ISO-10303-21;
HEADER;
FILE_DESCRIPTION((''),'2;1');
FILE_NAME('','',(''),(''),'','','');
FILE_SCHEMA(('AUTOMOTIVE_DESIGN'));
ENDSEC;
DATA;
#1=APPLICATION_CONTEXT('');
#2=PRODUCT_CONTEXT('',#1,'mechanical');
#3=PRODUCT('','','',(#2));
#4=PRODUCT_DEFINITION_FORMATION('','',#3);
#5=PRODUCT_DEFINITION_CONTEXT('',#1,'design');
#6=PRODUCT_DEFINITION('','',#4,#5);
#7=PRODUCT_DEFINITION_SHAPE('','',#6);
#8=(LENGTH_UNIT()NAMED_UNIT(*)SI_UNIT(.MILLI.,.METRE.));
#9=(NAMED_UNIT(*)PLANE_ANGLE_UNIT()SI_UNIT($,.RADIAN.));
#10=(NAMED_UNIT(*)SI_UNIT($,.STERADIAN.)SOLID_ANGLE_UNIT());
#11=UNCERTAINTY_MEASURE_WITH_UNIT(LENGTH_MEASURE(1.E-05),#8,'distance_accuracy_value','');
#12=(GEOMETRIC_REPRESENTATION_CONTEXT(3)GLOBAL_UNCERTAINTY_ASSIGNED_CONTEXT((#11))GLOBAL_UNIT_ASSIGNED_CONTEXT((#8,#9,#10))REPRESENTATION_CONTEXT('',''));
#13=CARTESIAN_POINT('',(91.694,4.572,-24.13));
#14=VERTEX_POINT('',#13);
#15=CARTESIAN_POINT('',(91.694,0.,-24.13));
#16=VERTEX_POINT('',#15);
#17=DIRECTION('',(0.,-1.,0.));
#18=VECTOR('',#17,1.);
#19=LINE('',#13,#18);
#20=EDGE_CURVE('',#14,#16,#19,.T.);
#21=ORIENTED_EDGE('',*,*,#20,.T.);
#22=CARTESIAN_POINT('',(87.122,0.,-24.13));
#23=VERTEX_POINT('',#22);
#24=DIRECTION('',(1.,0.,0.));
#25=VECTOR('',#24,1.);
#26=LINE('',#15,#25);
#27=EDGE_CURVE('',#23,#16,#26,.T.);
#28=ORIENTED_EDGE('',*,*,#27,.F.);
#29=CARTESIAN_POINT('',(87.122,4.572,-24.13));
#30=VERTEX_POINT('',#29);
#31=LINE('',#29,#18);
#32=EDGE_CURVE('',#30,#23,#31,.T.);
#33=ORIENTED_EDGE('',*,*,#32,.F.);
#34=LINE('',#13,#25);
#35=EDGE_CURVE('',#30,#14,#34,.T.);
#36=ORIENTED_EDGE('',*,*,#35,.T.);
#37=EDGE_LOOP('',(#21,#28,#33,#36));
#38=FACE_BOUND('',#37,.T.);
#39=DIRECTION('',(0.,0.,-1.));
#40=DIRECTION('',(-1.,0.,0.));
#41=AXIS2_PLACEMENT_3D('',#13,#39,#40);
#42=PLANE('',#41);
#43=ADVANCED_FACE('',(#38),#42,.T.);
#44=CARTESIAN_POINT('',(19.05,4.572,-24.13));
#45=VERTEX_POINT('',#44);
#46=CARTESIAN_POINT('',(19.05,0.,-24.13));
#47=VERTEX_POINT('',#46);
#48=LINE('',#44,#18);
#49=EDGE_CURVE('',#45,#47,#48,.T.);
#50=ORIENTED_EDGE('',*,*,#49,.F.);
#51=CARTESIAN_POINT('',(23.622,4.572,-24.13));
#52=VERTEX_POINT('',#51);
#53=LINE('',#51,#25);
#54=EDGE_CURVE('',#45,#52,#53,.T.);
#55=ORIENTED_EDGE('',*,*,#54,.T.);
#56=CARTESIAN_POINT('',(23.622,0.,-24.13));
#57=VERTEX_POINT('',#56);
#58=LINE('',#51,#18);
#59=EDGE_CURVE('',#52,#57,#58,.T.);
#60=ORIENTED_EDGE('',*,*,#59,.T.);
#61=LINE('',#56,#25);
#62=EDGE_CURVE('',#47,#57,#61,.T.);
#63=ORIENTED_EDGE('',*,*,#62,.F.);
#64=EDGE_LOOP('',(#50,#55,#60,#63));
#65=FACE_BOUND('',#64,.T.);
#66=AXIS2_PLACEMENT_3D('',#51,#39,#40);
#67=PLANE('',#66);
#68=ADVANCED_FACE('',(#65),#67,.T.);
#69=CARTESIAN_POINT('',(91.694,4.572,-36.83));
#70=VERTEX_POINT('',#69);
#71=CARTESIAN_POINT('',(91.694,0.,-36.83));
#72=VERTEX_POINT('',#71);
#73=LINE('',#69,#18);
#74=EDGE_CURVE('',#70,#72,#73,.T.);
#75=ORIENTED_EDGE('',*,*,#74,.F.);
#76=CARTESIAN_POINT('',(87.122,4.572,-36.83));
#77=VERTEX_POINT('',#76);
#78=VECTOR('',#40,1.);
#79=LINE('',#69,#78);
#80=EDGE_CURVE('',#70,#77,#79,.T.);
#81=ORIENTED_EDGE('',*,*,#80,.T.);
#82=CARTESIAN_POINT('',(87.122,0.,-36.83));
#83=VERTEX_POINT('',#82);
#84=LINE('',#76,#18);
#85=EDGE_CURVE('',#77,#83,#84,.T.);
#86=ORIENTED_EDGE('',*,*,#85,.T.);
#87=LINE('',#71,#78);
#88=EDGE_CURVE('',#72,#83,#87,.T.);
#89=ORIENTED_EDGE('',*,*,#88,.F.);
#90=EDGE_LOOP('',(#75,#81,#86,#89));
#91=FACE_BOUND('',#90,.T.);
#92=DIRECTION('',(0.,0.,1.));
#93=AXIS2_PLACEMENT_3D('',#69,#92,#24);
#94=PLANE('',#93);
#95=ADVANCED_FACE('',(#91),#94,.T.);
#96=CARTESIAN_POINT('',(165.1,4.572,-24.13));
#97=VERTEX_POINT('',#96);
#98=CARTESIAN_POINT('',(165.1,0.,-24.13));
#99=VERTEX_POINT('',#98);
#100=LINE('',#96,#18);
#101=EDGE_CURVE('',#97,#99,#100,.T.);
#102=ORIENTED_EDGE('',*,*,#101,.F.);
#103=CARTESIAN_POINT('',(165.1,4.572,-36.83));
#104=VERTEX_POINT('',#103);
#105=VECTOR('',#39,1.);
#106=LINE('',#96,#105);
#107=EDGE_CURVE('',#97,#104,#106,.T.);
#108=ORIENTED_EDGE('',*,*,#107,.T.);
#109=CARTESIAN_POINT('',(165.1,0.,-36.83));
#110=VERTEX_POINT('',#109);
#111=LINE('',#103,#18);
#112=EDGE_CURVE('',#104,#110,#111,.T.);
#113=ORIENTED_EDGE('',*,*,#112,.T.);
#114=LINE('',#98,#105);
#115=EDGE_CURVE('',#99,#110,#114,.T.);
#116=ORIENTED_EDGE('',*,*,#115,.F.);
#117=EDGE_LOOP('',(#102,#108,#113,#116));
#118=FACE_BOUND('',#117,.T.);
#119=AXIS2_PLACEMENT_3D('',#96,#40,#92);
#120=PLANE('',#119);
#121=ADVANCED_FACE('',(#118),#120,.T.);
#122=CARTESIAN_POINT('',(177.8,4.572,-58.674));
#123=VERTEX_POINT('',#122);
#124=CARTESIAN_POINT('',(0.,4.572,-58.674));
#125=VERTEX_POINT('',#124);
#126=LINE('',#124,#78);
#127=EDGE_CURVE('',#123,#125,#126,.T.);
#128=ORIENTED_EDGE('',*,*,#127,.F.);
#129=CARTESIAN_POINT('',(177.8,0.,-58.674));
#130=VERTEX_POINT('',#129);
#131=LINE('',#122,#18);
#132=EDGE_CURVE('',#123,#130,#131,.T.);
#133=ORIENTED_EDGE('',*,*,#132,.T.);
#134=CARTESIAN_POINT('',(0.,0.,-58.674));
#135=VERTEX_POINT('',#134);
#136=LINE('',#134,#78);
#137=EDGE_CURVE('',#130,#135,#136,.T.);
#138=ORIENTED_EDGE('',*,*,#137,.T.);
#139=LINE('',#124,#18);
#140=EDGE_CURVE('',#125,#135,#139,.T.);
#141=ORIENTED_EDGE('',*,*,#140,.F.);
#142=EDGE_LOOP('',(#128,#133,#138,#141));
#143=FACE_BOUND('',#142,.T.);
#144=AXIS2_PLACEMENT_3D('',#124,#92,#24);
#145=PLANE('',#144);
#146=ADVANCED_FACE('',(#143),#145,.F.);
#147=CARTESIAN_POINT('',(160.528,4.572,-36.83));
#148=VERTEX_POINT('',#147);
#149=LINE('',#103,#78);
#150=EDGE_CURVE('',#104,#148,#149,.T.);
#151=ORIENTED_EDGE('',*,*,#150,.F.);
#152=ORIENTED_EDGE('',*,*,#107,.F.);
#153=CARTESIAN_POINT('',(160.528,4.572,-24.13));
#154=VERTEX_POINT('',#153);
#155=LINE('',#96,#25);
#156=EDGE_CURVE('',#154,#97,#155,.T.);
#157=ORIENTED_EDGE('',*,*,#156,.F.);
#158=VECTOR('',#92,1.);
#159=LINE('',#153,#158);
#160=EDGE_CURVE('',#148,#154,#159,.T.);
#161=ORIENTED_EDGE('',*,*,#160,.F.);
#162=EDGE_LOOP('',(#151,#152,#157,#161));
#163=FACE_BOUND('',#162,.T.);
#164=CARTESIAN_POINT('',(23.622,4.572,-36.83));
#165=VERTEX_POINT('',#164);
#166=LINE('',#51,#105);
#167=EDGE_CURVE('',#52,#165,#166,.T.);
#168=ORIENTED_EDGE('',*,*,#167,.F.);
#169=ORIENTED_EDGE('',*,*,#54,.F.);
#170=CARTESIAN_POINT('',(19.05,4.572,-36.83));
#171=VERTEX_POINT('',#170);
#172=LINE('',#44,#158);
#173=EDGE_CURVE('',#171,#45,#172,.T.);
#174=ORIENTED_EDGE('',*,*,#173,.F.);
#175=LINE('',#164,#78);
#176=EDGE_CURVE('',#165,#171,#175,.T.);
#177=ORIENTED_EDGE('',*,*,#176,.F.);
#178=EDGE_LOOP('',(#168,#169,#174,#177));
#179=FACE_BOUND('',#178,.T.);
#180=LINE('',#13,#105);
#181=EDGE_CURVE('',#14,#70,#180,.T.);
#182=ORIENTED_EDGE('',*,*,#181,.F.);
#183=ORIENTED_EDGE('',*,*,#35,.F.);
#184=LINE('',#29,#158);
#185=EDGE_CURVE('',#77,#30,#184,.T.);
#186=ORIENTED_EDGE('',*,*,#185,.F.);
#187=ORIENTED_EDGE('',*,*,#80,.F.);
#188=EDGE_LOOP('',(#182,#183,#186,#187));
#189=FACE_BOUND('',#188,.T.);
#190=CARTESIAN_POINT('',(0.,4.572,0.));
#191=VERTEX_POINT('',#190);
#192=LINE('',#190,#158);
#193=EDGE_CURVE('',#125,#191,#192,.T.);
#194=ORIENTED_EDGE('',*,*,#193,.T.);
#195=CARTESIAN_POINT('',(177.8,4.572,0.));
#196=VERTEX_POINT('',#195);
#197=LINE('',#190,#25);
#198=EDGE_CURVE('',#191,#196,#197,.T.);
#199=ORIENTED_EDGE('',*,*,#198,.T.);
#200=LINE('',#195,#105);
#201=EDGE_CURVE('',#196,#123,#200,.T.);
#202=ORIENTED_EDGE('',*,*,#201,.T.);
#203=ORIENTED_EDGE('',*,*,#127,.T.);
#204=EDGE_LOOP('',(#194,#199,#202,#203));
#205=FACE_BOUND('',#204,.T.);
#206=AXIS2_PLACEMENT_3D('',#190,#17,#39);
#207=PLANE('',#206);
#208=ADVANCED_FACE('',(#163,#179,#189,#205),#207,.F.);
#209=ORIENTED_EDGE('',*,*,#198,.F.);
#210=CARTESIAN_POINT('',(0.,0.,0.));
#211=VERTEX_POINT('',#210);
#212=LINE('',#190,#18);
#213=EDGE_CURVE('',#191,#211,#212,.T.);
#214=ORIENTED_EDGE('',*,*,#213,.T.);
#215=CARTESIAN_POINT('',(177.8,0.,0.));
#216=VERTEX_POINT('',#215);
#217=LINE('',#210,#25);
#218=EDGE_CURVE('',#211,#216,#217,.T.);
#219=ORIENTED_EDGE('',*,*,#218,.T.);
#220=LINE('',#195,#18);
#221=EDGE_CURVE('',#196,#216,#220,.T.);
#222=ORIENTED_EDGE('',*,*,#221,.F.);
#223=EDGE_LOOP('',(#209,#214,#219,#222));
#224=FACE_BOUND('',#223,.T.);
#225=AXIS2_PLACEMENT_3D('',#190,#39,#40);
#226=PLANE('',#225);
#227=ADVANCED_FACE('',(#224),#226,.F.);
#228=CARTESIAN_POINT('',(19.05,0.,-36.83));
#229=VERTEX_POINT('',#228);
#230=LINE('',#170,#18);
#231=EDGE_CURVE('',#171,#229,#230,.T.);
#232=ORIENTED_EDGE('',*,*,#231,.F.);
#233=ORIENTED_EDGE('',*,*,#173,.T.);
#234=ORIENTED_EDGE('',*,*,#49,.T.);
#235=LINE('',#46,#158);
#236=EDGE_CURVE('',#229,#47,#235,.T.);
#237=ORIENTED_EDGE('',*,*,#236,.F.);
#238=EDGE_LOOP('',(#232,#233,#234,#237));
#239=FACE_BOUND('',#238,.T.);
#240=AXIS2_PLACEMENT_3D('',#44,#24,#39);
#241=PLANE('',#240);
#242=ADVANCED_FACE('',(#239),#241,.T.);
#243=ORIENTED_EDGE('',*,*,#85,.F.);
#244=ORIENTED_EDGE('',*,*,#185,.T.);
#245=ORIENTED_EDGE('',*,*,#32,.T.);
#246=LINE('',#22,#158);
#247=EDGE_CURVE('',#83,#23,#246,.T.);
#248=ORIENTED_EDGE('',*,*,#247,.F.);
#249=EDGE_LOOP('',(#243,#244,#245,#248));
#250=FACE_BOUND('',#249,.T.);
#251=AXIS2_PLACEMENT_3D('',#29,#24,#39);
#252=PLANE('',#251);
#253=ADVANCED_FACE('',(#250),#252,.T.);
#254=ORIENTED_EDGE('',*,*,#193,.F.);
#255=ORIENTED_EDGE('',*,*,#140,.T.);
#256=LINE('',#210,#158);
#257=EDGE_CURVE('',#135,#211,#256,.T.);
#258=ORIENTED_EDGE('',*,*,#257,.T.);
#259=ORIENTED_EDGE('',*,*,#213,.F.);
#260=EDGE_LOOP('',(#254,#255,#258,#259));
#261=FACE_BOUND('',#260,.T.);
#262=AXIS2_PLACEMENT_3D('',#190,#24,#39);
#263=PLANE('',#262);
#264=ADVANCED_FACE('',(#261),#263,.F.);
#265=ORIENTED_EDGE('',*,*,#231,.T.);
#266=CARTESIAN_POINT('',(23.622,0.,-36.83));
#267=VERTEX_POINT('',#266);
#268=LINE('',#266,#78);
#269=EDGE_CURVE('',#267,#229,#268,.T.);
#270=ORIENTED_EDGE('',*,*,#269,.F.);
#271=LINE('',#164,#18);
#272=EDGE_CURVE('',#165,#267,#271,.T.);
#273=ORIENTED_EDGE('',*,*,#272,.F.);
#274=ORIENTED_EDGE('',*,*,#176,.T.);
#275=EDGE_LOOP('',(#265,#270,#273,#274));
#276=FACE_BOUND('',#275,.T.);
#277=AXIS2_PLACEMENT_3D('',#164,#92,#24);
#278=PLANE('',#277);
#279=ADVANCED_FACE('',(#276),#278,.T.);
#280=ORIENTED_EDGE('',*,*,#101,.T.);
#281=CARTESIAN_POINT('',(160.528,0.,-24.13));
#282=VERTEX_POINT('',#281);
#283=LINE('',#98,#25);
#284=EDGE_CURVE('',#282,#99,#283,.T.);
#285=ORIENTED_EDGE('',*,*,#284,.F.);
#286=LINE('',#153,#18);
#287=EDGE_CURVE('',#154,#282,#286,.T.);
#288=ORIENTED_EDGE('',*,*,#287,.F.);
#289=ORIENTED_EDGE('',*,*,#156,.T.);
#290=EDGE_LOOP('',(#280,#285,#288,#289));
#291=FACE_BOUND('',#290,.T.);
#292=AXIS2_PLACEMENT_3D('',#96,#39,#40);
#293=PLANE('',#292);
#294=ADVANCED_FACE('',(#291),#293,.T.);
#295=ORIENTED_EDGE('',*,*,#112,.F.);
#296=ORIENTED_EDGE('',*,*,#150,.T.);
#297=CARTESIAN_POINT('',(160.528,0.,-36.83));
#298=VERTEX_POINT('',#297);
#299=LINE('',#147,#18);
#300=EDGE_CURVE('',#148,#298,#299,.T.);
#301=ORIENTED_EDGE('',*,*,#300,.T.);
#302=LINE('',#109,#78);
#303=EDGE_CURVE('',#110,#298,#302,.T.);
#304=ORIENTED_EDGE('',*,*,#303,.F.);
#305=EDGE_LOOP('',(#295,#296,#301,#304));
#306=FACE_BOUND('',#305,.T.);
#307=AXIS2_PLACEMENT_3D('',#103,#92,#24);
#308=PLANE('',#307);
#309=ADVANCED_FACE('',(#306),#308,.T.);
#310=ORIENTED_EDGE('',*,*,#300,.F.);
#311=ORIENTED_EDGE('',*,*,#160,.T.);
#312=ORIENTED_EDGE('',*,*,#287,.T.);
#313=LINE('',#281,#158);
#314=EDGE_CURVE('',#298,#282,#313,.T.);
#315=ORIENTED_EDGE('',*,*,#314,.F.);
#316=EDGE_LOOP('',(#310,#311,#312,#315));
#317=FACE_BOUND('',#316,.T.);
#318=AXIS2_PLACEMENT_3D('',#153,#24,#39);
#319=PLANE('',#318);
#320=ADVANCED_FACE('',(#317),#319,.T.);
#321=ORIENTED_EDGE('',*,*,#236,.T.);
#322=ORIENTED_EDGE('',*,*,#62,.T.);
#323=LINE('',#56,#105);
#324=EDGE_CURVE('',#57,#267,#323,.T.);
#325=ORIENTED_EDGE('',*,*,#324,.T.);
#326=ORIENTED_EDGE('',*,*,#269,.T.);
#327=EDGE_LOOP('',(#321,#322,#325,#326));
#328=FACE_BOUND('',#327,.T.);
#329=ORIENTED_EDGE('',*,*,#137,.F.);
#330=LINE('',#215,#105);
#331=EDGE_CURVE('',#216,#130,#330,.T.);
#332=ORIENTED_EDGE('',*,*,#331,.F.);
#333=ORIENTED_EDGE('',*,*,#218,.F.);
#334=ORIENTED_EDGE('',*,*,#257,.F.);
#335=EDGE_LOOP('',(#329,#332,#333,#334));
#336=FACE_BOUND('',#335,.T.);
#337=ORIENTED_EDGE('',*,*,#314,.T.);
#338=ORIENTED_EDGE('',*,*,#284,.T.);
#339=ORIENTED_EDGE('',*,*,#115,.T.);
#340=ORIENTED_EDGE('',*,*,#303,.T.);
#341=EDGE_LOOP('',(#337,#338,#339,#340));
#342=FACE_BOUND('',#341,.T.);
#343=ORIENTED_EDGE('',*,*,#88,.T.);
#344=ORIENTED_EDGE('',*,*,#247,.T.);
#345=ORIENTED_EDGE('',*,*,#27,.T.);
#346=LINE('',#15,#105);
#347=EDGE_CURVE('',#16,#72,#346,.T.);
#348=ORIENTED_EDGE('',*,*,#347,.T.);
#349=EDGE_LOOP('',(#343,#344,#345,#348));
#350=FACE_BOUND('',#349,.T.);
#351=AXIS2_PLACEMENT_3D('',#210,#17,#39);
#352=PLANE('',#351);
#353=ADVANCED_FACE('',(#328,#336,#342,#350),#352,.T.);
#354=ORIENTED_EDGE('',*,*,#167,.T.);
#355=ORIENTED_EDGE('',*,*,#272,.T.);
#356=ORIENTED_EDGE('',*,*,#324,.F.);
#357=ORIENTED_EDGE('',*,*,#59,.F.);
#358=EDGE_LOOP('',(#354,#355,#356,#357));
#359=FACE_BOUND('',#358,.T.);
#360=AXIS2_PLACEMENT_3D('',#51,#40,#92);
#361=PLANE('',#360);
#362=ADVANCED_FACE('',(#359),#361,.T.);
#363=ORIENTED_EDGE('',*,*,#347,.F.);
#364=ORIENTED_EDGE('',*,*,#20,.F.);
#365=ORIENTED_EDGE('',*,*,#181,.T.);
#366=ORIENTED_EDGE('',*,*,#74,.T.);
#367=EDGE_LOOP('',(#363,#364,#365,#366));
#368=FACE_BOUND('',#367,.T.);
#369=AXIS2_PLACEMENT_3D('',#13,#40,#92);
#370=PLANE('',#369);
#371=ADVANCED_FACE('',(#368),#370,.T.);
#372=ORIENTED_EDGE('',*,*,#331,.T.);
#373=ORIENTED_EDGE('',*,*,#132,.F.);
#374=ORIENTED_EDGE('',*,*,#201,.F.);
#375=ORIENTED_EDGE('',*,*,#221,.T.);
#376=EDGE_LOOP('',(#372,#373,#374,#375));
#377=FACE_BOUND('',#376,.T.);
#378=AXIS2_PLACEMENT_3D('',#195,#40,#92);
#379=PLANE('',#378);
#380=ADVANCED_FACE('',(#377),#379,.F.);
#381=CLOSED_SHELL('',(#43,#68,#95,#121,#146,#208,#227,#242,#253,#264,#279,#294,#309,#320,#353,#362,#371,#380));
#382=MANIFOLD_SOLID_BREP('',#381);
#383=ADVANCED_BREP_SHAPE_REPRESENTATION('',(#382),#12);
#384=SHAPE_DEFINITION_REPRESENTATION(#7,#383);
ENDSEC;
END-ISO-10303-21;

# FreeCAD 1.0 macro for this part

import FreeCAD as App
import Part
import Sketcher
from FreeCAD import Vector
Q = App.Units.Quantity


def add_polygon(sketch, points):
    """Adds a closed chain of lines whose ends are joined by coincident constraints."""
    first, n = sketch.GeometryCount, len(points)
    for a, b in zip(points, points[1:] + points[:1]):
        sketch.addGeometry(Part.LineSegment(App.Vector(*a, 0), App.Vector(*b, 0)), False)
    for i in range(n):
        sketch.addConstraint(Sketcher.Constraint("Coincident", first + i, 2, first + (i + 1) % n, 1))

doc = App.newDocument("Part")
body = doc.addObject("PartDesign::Body", "Body")

# Sketch on XZ plane
sketch1 = doc.addObject("Sketcher::SketchObject", "Sketch")
body.addObject(sketch1)
sketch1.AttachmentSupport = (doc.XZ_Plane, [""])
sketch1.MapMode = "FlatFace"
add_polygon(sketch1, [(0, -58.674), (0, 0), (177.8, 0), (177.8, -58.674)])  # lines 0-3
add_polygon(sketch1, [(23.622, -24.13), (19.05, -24.13), (19.05, -36.83), (23.622, -36.83)])  # lines 4-7
add_polygon(sketch1, [(91.694, -24.13), (87.122, -24.13), (87.122, -36.83), (91.694, -36.83)])  # lines 8-11
add_polygon(sketch1, [(165.1, -24.13), (160.528, -24.13), (160.528, -36.83), (165.1, -36.83)])  # lines 12-15
sketch1.addConstraint(Sketcher.Constraint("Vertical", 0))
sketch1.addConstraint(Sketcher.Constraint("Horizontal", 1))
sketch1.addConstraint(Sketcher.Constraint("Vertical", 2))
sketch1.addConstraint(Sketcher.Constraint("Horizontal", 3))
sketch1.addConstraint(Sketcher.Constraint("Horizontal", 4))
sketch1.addConstraint(Sketcher.Constraint("Vertical", 5))
sketch1.addConstraint(Sketcher.Constraint("Horizontal", 6))
sketch1.addConstraint(Sketcher.Constraint("Vertical", 7))
sketch1.addConstraint(Sketcher.Constraint("Horizontal", 8))
sketch1.addConstraint(Sketcher.Constraint("Vertical", 9))
sketch1.addConstraint(Sketcher.Constraint("Horizontal", 10))
sketch1.addConstraint(Sketcher.Constraint("Vertical", 11))
sketch1.addConstraint(Sketcher.Constraint("Horizontal", 12))
sketch1.addConstraint(Sketcher.Constraint("Vertical", 13))
sketch1.addConstraint(Sketcher.Constraint("Horizontal", 14))
sketch1.addConstraint(Sketcher.Constraint("Vertical", 15))
sketch1.addConstraint(Sketcher.Constraint("Coincident", 0, 2, -1, 1))
sketch1.addConstraint(Sketcher.Constraint("Horizontal", 7, 2, 8, 2))
sketch1.addConstraint(Sketcher.Constraint("Horizontal", 6, 2, 9, 2))
sketch1.addConstraint(Sketcher.Constraint("Horizontal", 11, 2, 12, 2))
sketch1.addConstraint(Sketcher.Constraint("Horizontal", 10, 2, 13, 2))
sketch1.addConstraint(Sketcher.Constraint("Equal", 6, 8))
sketch1.addConstraint(Sketcher.Constraint("Equal", 10, 12))
sketch1.addConstraint(Sketcher.Constraint("DistanceX", 1, 1, 1, 2, Q("7 in")))
sketch1.addConstraint(Sketcher.Constraint("DistanceY", 5, 2, 5, 1, Q("0.5 in")))
sketch1.addConstraint(Sketcher.Constraint("DistanceX", 4, 2, 4, 1, Q("0.18 in")))
sketch1.addConstraint(Sketcher.Constraint("DistanceY", 0, 1, 0, 2, Q("2.31 in")))
sketch1.addConstraint(Sketcher.Constraint("DistanceX", -1, 1, 14, 2, Q("6.5 in")))
sketch1.addConstraint(Sketcher.Constraint("DistanceX", 7, 2, 8, 2, Q("2.5 in")))
sketch1.addConstraint(Sketcher.Constraint("DistanceX", -1, 1, 4, 2, Q("0.75 in")))
sketch1.addConstraint(Sketcher.Constraint("DistanceY", 4, 2, -1, 1, Q("0.95 in")))
pad1 = doc.addObject("PartDesign::Pad", "Pad")
body.addObject(pad1)
pad1.Profile = sketch1
pad1.Length = Q("0.18 in")
pad1.Reversed = True

doc.recompute()
